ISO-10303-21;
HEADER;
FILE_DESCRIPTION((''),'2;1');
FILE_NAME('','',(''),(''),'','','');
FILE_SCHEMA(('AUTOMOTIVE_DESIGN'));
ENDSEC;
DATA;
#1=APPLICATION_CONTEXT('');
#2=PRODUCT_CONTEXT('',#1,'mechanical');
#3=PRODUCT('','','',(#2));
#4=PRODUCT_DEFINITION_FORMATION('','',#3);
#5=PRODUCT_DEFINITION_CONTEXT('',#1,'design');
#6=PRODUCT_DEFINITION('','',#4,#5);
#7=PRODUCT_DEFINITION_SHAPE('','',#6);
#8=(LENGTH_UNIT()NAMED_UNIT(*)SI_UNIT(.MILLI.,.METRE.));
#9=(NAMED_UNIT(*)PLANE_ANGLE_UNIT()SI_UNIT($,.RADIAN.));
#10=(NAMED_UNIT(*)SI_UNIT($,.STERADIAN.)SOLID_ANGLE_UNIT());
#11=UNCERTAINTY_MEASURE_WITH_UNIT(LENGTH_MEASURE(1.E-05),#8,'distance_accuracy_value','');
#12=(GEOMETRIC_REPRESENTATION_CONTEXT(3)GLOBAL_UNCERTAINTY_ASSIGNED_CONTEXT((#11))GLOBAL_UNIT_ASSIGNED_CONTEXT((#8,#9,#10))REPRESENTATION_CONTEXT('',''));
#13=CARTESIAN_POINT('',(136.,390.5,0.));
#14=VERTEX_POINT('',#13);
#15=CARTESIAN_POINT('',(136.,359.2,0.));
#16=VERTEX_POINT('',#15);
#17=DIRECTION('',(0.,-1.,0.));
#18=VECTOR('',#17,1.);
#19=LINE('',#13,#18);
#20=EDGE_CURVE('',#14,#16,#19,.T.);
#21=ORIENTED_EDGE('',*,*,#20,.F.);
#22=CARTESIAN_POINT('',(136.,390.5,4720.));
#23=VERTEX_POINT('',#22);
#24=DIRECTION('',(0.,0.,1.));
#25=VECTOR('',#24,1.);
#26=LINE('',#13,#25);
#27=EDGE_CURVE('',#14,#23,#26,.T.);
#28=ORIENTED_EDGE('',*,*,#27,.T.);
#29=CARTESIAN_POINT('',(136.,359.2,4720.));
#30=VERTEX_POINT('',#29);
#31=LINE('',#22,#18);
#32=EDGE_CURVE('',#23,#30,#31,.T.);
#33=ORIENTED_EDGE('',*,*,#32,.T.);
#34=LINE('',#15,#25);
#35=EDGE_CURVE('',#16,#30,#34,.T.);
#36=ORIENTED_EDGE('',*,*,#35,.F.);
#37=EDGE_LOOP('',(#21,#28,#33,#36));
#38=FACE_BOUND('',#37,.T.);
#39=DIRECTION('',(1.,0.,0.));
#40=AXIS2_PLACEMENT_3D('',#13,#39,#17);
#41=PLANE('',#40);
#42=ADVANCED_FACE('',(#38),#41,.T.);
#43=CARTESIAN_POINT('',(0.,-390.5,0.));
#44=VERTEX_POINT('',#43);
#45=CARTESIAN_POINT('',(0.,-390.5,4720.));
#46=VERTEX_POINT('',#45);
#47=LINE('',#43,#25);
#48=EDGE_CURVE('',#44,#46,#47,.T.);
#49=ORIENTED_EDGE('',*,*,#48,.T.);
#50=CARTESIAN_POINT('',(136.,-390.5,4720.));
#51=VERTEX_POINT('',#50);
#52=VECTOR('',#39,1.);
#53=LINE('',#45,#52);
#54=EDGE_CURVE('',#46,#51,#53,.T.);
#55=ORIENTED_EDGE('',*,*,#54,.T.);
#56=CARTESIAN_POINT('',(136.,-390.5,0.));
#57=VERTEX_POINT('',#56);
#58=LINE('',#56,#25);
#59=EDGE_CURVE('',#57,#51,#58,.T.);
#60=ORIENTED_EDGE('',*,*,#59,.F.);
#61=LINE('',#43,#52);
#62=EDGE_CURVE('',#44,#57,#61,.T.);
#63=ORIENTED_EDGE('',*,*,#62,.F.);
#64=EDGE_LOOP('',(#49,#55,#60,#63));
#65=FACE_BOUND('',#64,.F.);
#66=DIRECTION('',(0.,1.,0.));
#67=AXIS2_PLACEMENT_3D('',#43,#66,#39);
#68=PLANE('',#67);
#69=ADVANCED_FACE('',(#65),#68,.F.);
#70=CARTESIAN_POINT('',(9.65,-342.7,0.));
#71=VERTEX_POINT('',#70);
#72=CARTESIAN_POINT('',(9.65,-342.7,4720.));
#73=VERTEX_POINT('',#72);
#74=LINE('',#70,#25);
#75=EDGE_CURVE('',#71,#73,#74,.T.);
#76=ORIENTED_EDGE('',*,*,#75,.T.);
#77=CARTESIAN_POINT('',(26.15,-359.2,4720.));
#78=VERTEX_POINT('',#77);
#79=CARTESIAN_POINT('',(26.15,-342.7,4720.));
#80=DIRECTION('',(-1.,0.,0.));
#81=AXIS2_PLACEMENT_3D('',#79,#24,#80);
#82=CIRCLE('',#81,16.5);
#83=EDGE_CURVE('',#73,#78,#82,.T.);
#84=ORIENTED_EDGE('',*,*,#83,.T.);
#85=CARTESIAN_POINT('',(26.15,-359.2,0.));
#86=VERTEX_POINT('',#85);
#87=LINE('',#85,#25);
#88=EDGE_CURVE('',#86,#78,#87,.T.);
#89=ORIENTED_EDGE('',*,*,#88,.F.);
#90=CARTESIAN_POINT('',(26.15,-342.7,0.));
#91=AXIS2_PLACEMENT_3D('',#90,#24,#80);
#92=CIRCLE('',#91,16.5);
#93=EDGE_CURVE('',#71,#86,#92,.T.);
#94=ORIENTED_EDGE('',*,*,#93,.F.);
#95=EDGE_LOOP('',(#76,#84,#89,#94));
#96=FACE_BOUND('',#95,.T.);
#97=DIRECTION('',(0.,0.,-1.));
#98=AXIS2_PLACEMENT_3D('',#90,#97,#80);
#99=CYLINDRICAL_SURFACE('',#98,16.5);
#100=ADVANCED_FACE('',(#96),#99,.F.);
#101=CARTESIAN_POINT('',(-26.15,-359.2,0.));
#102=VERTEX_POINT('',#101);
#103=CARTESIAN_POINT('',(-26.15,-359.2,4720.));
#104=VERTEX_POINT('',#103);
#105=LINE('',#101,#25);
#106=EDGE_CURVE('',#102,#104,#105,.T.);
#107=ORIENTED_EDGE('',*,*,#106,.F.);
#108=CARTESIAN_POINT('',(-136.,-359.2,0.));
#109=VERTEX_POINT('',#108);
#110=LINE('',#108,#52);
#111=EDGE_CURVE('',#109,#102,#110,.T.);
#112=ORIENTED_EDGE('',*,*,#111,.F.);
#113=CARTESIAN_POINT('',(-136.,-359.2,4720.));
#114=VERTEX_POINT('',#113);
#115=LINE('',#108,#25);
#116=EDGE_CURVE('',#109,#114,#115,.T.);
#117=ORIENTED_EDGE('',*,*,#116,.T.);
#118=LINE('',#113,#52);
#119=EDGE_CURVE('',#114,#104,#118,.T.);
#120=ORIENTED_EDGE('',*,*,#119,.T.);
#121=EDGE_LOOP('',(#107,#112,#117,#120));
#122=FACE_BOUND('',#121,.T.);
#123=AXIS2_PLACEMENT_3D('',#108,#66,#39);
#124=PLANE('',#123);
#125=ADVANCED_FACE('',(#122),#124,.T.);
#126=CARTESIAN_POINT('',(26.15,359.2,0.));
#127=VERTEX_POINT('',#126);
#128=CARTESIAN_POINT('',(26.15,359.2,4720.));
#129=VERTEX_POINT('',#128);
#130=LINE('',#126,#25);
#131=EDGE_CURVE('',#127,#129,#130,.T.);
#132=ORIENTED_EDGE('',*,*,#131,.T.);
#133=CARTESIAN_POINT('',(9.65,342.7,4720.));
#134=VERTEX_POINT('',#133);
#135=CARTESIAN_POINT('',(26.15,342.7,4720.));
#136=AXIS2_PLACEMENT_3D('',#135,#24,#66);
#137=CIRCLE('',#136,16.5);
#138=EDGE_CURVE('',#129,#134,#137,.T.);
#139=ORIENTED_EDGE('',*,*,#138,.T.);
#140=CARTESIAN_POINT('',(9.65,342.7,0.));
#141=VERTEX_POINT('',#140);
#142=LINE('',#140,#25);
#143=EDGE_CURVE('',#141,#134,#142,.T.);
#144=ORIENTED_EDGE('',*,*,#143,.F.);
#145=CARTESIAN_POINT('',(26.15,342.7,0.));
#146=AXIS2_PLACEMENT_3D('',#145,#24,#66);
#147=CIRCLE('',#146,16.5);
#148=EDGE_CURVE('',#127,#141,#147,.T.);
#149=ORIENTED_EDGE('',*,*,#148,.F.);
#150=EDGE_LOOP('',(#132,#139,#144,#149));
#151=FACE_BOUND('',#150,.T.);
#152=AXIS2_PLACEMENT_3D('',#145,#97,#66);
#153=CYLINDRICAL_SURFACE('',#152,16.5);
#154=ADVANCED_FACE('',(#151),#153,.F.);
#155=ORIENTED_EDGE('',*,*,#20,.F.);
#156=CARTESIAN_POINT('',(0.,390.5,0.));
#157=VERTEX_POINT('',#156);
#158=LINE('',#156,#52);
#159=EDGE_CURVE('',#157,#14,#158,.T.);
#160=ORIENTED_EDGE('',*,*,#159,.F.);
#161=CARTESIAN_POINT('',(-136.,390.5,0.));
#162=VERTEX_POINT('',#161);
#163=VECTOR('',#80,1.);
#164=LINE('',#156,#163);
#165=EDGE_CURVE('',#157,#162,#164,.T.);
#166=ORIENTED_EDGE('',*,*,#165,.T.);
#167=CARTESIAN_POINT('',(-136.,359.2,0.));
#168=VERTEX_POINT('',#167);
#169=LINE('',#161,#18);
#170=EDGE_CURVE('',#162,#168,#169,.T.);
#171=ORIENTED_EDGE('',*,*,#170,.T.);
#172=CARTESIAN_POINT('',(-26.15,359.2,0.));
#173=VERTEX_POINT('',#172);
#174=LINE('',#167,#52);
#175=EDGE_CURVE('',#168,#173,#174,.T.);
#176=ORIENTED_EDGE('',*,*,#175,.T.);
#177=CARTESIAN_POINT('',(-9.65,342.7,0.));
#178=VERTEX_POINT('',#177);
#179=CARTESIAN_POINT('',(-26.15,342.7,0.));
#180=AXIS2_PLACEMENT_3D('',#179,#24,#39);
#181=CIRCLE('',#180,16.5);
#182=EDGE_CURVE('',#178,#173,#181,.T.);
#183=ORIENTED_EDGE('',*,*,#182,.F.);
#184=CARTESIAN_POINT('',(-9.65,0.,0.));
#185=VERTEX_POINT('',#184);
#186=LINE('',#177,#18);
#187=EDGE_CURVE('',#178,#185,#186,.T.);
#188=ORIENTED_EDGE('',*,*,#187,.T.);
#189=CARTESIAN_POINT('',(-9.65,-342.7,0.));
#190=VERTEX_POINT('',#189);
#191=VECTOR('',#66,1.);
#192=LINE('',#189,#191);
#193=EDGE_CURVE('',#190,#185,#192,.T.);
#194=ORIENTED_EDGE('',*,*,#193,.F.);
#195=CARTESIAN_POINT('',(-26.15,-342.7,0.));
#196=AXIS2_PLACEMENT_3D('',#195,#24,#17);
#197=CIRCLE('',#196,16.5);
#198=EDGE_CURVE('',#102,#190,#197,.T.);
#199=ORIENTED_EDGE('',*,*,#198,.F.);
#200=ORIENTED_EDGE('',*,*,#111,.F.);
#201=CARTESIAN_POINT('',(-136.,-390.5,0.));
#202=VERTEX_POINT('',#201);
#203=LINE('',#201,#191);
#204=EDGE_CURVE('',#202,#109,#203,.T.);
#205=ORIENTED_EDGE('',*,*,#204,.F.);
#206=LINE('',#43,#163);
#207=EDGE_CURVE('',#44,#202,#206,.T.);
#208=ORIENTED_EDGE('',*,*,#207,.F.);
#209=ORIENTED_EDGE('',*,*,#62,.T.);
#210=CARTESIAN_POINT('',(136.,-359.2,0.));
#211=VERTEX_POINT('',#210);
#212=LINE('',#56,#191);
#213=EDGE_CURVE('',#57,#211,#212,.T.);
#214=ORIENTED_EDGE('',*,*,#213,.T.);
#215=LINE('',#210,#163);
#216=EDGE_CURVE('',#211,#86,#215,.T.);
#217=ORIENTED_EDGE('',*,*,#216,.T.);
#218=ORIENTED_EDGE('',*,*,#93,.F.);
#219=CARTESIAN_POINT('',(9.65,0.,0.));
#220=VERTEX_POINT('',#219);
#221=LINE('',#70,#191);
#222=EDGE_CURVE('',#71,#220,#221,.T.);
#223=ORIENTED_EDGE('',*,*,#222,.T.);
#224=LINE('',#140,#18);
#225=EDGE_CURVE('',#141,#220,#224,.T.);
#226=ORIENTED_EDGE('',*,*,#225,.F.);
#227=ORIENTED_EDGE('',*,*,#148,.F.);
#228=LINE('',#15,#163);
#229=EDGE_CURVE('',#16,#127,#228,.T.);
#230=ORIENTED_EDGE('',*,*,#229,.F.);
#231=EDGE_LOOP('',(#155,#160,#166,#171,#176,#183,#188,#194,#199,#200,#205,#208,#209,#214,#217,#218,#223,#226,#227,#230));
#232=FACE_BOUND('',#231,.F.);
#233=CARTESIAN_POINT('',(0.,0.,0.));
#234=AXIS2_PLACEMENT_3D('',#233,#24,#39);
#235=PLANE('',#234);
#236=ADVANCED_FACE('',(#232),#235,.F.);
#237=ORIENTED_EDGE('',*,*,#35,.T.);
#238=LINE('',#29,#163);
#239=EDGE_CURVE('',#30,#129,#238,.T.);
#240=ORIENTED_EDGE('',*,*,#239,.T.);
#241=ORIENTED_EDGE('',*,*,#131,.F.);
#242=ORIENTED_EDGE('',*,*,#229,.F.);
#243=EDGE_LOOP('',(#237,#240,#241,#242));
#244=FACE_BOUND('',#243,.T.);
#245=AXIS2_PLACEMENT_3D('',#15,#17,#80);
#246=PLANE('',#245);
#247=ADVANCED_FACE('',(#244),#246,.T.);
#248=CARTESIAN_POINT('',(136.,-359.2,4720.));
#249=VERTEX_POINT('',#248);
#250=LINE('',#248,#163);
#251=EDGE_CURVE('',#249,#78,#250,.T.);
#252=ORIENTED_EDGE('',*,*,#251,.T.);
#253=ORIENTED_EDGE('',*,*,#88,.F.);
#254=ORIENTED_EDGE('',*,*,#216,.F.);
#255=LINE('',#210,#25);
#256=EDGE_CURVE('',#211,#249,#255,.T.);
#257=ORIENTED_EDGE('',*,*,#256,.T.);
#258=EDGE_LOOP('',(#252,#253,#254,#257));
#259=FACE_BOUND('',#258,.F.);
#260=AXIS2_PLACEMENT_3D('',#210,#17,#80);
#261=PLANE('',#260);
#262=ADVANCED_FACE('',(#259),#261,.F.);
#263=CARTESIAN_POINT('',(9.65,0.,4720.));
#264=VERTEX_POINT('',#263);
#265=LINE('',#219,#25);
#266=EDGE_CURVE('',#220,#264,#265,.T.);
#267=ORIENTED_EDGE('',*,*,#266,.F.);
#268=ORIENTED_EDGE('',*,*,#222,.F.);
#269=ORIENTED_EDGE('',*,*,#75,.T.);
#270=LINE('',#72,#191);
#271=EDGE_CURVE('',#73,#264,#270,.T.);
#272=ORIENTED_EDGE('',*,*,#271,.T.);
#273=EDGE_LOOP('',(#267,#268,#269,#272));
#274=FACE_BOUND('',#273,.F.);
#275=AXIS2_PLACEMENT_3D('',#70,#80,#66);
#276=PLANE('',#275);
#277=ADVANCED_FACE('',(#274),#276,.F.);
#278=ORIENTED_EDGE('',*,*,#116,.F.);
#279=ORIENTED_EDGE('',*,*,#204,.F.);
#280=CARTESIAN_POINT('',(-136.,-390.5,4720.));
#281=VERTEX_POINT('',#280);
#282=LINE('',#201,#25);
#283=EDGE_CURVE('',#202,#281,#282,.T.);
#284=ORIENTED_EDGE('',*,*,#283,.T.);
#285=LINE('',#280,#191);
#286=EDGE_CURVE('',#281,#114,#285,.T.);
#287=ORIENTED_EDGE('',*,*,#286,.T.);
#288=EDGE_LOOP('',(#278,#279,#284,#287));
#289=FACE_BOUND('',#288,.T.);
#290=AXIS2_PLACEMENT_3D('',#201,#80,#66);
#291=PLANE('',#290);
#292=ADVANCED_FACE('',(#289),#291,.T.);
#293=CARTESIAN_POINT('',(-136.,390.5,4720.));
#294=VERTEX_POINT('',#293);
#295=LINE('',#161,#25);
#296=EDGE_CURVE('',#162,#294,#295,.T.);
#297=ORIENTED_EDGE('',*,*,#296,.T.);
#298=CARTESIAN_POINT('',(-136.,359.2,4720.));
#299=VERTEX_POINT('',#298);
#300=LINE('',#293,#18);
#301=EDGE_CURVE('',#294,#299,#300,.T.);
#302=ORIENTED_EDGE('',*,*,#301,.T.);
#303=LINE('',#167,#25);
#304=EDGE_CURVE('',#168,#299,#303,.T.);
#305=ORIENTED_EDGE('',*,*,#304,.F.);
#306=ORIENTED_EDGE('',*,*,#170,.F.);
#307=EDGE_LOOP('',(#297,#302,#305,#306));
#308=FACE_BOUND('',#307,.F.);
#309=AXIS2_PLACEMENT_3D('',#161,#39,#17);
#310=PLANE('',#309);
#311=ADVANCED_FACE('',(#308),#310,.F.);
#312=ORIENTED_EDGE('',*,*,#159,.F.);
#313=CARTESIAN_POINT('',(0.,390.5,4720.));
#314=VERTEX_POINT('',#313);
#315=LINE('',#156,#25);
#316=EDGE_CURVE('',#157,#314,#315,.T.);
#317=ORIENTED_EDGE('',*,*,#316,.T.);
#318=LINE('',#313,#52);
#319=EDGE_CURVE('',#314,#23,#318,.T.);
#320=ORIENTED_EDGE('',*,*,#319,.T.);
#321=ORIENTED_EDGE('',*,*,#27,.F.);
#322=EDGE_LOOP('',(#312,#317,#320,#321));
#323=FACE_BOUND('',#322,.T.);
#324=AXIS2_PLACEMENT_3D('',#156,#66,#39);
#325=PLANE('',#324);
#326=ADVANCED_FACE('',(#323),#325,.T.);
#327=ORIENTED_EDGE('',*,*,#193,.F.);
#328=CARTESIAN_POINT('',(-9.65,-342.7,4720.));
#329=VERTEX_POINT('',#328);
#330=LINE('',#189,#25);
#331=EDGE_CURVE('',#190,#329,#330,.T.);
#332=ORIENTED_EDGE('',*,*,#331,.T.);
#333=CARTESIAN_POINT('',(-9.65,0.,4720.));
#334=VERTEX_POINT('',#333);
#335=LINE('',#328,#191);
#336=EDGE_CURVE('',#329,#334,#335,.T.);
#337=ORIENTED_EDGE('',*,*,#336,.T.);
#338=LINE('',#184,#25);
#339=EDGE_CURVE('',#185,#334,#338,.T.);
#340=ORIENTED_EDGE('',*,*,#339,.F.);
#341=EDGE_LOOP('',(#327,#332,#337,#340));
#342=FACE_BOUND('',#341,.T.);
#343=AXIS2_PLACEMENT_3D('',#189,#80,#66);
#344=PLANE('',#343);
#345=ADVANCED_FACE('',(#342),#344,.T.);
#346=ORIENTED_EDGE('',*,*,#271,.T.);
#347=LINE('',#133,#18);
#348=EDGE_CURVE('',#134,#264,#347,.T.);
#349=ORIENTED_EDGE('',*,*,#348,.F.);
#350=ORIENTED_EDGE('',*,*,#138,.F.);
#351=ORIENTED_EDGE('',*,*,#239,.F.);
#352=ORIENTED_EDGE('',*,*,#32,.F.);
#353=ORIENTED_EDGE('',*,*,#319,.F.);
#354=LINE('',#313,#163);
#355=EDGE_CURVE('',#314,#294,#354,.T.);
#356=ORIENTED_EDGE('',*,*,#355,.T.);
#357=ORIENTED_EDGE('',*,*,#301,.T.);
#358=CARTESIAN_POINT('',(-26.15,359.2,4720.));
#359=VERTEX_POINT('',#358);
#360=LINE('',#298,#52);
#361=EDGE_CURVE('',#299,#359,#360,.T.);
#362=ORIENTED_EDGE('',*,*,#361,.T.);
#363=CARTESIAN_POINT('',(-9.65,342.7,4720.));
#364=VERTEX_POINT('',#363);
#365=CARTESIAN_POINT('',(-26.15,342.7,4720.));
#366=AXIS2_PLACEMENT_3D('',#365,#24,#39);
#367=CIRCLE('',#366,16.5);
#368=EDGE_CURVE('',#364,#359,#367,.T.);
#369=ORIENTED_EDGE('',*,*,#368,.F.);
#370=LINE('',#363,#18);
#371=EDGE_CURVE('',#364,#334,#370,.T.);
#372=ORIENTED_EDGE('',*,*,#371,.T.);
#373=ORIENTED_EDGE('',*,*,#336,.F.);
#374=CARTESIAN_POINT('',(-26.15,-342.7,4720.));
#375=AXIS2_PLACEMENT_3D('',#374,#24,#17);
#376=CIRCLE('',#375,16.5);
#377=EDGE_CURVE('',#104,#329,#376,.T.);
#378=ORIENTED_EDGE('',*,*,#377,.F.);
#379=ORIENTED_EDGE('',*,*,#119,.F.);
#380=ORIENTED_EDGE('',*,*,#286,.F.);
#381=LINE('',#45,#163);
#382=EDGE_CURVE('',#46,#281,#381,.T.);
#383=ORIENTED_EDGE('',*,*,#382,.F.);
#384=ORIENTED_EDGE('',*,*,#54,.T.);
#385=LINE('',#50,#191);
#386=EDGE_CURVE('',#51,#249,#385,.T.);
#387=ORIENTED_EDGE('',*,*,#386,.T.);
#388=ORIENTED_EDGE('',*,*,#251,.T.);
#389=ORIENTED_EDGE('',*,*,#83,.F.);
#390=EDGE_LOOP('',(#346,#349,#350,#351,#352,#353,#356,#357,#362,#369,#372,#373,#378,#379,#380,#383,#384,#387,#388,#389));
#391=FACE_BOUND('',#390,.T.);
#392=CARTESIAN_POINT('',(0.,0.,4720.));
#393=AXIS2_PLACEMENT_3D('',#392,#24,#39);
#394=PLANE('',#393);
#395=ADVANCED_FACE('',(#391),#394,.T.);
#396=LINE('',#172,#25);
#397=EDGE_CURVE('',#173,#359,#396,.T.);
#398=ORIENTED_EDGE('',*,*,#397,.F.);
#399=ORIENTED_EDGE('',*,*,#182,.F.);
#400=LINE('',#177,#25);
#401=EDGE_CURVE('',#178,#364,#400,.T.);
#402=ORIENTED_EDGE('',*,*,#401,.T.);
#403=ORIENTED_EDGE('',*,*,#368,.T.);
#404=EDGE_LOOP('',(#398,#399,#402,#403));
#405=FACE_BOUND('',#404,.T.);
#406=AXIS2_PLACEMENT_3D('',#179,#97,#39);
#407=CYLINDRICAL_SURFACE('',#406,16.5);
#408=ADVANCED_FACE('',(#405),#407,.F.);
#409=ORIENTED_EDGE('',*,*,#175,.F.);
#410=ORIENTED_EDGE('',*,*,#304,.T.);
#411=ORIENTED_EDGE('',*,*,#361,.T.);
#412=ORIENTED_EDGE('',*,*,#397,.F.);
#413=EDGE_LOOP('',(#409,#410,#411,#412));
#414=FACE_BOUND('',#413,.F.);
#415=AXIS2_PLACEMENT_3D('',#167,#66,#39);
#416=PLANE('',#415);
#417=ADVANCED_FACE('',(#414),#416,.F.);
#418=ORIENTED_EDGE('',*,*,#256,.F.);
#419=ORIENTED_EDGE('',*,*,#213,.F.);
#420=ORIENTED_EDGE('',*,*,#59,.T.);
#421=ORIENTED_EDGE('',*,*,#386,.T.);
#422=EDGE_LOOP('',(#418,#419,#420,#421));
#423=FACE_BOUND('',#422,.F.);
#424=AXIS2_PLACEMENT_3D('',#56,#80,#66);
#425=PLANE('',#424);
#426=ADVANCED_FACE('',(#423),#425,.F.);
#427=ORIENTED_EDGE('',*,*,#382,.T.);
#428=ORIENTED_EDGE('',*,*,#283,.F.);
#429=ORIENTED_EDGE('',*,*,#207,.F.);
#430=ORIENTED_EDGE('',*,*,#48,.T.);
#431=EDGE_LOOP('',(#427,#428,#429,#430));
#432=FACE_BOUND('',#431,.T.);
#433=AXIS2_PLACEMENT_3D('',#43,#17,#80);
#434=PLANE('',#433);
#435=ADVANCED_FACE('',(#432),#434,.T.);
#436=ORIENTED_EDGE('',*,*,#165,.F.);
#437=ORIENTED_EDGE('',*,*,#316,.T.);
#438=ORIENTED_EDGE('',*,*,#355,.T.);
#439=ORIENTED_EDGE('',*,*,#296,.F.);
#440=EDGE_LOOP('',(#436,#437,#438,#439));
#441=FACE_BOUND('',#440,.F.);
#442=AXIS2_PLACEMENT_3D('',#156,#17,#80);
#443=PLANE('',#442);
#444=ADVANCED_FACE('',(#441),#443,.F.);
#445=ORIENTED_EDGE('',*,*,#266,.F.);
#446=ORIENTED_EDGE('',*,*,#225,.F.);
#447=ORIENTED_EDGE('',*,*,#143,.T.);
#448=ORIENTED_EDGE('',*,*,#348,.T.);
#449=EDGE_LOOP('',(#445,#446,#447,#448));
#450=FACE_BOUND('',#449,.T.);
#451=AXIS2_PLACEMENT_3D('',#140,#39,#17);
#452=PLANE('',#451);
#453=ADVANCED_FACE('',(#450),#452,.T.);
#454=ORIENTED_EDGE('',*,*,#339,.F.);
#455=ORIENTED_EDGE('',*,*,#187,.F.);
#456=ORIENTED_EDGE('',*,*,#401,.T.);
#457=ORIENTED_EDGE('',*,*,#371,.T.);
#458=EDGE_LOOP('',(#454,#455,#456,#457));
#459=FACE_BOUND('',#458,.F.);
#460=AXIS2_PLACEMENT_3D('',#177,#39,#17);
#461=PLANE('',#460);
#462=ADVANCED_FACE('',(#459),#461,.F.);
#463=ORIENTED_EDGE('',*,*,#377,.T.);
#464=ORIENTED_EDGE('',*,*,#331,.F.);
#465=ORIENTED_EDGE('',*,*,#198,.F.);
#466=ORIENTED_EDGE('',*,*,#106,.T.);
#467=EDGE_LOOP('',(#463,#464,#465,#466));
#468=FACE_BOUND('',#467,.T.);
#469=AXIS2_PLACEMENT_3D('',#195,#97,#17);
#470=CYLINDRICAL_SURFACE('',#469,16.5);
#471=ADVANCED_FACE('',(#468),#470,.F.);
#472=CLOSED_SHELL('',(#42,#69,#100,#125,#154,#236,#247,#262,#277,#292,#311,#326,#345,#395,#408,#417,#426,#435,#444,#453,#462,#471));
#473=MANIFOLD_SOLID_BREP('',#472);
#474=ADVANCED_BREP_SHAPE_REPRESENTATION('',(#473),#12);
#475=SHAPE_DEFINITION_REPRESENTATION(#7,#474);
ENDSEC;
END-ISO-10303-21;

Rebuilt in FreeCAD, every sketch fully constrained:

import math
import FreeCAD as App
import Part
import Sketcher

V = App.Vector

doc = App.newDocument("Part")
body = doc.addObject("PartDesign::Body", "Body")

sketch1 = body.newObject("Sketcher::SketchObject", "Sketch")
sketch1.AttachmentSupport = (doc.getObject("XY_Plane"), [""])
sketch1.MapMode = "FlatFace"
sketch1.addGeometry(Part.LineSegment(V(-136, -359, 0), V(-136, -390, 0)), False)
sketch1.addGeometry(Part.LineSegment(V(-136, -390, 0), V(136, -390, 0)), False)
sketch1.addGeometry(Part.LineSegment(V(136, -390, 0), V(136, -359, 0)), False)
sketch1.addGeometry(Part.LineSegment(V(136, -359, 0), V(26, -359, 0)), False)
sketch1.addGeometry(Part.ArcOfCircle(Part.Circle(V(26, -343, 0), V(0, 0, 1), 16), math.radians(180), math.radians(270)), False)
sketch1.addGeometry(Part.LineSegment(V(10, -343, 0), V(10, 343, 0)), False)
sketch1.addGeometry(Part.ArcOfCircle(Part.Circle(V(26, 343, 0), V(0, 0, 1), 16), math.radians(90), math.radians(180)), False)
sketch1.addGeometry(Part.LineSegment(V(26, 359, 0), V(136, 359, 0)), False)
sketch1.addGeometry(Part.LineSegment(V(136, 359, 0), V(136, 390, 0)), False)
sketch1.addGeometry(Part.LineSegment(V(136, 390, 0), V(-136, 390, 0)), False)
sketch1.addGeometry(Part.LineSegment(V(-136, 390, 0), V(-136, 359, 0)), False)
sketch1.addGeometry(Part.LineSegment(V(-136, 359, 0), V(-26, 359, 0)), False)
sketch1.addGeometry(Part.ArcOfCircle(Part.Circle(V(-26, 343, 0), V(0, 0, 1), 16), math.radians(0), math.radians(90)), False)
sketch1.addGeometry(Part.LineSegment(V(-10, 343, 0), V(-10, -343, 0)), False)
sketch1.addGeometry(Part.ArcOfCircle(Part.Circle(V(-26, -343, 0), V(0, 0, 1), 16), math.radians(-90), math.radians(0)), False)
sketch1.addGeometry(Part.LineSegment(V(-26, -359, 0), V(-136, -359, 0)), False)
sketch1.addConstraint(Sketcher.Constraint("Coincident", 0, 2, 1, 1))
sketch1.addConstraint(Sketcher.Constraint("Coincident", 1, 2, 2, 1))
sketch1.addConstraint(Sketcher.Constraint("Coincident", 2, 2, 3, 1))
sketch1.addConstraint(Sketcher.Constraint("Tangent", 3, 2, 4, 2))
sketch1.addConstraint(Sketcher.Constraint("Tangent", 4, 1, 5, 1))
sketch1.addConstraint(Sketcher.Constraint("Tangent", 5, 2, 6, 2))
sketch1.addConstraint(Sketcher.Constraint("Tangent", 6, 1, 7, 1))
sketch1.addConstraint(Sketcher.Constraint("Coincident", 7, 2, 8, 1))
sketch1.addConstraint(Sketcher.Constraint("Coincident", 8, 2, 9, 1))
sketch1.addConstraint(Sketcher.Constraint("Coincident", 9, 2, 10, 1))
sketch1.addConstraint(Sketcher.Constraint("Coincident", 10, 2, 11, 1))
sketch1.addConstraint(Sketcher.Constraint("Tangent", 11, 2, 12, 2))
sketch1.addConstraint(Sketcher.Constraint("Tangent", 12, 1, 13, 1))
sketch1.addConstraint(Sketcher.Constraint("Tangent", 13, 2, 14, 2))
sketch1.addConstraint(Sketcher.Constraint("Tangent", 14, 1, 15, 1))
sketch1.addConstraint(Sketcher.Constraint("Coincident", 15, 2, 0, 1))
sketch1.addConstraint(Sketcher.Constraint("Vertical", 0))
sketch1.addConstraint(Sketcher.Constraint("Horizontal", 1))
sketch1.addConstraint(Sketcher.Constraint("Vertical", 2))
sketch1.addConstraint(Sketcher.Constraint("Horizontal", 3))
sketch1.addConstraint(Sketcher.Constraint("Vertical", 5))
sketch1.addConstraint(Sketcher.Constraint("Horizontal", 7))
sketch1.addConstraint(Sketcher.Constraint("Vertical", 8))
sketch1.addConstraint(Sketcher.Constraint("Horizontal", 9))
sketch1.addConstraint(Sketcher.Constraint("Vertical", 10))
sketch1.addConstraint(Sketcher.Constraint("Horizontal", 11))
sketch1.addConstraint(Sketcher.Constraint("Vertical", 13))
sketch1.addConstraint(Sketcher.Constraint("Horizontal", 15))
sketch1.addConstraint(Sketcher.Constraint("Equal", 4, 6))
sketch1.addConstraint(Sketcher.Constraint("Equal", 6, 12))
sketch1.addConstraint(Sketcher.Constraint("Equal", 12, 14))
sketch1.addConstraint(Sketcher.Constraint("Symmetric", 4, 3, 12, 3, -1, 1))
sketch1.addConstraint(Sketcher.Constraint("Symmetric", 0, 2, 8, 2, -1, 1))
sketch1.addConstraint(Sketcher.Constraint("Symmetric", 7, 2, 10, 2, -2))
sketch1.addConstraint(Sketcher.Constraint("Symmetric", 2, 2, 15, 2, -2))
sketch1.addConstraint(Sketcher.Constraint("Radius", 4, 16.5))
sketch1.addConstraint(Sketcher.Constraint("DistanceY", 0, 2, 0, 1, 31.3))
sketch1.addConstraint(Sketcher.Constraint("DistanceX", 0, 2, -1, 1, 136.0))
sketch1.addConstraint(Sketcher.Constraint("DistanceY", 0, 2, -1, 1, 390.5))
sketch1.addConstraint(Sketcher.Constraint("DistanceX", -1, 1, 4, 1, 9.65))
pad1 = body.newObject("PartDesign::Pad", "Pad")
pad1.Profile = sketch1
pad1.Length = 4720

doc.recompute()
